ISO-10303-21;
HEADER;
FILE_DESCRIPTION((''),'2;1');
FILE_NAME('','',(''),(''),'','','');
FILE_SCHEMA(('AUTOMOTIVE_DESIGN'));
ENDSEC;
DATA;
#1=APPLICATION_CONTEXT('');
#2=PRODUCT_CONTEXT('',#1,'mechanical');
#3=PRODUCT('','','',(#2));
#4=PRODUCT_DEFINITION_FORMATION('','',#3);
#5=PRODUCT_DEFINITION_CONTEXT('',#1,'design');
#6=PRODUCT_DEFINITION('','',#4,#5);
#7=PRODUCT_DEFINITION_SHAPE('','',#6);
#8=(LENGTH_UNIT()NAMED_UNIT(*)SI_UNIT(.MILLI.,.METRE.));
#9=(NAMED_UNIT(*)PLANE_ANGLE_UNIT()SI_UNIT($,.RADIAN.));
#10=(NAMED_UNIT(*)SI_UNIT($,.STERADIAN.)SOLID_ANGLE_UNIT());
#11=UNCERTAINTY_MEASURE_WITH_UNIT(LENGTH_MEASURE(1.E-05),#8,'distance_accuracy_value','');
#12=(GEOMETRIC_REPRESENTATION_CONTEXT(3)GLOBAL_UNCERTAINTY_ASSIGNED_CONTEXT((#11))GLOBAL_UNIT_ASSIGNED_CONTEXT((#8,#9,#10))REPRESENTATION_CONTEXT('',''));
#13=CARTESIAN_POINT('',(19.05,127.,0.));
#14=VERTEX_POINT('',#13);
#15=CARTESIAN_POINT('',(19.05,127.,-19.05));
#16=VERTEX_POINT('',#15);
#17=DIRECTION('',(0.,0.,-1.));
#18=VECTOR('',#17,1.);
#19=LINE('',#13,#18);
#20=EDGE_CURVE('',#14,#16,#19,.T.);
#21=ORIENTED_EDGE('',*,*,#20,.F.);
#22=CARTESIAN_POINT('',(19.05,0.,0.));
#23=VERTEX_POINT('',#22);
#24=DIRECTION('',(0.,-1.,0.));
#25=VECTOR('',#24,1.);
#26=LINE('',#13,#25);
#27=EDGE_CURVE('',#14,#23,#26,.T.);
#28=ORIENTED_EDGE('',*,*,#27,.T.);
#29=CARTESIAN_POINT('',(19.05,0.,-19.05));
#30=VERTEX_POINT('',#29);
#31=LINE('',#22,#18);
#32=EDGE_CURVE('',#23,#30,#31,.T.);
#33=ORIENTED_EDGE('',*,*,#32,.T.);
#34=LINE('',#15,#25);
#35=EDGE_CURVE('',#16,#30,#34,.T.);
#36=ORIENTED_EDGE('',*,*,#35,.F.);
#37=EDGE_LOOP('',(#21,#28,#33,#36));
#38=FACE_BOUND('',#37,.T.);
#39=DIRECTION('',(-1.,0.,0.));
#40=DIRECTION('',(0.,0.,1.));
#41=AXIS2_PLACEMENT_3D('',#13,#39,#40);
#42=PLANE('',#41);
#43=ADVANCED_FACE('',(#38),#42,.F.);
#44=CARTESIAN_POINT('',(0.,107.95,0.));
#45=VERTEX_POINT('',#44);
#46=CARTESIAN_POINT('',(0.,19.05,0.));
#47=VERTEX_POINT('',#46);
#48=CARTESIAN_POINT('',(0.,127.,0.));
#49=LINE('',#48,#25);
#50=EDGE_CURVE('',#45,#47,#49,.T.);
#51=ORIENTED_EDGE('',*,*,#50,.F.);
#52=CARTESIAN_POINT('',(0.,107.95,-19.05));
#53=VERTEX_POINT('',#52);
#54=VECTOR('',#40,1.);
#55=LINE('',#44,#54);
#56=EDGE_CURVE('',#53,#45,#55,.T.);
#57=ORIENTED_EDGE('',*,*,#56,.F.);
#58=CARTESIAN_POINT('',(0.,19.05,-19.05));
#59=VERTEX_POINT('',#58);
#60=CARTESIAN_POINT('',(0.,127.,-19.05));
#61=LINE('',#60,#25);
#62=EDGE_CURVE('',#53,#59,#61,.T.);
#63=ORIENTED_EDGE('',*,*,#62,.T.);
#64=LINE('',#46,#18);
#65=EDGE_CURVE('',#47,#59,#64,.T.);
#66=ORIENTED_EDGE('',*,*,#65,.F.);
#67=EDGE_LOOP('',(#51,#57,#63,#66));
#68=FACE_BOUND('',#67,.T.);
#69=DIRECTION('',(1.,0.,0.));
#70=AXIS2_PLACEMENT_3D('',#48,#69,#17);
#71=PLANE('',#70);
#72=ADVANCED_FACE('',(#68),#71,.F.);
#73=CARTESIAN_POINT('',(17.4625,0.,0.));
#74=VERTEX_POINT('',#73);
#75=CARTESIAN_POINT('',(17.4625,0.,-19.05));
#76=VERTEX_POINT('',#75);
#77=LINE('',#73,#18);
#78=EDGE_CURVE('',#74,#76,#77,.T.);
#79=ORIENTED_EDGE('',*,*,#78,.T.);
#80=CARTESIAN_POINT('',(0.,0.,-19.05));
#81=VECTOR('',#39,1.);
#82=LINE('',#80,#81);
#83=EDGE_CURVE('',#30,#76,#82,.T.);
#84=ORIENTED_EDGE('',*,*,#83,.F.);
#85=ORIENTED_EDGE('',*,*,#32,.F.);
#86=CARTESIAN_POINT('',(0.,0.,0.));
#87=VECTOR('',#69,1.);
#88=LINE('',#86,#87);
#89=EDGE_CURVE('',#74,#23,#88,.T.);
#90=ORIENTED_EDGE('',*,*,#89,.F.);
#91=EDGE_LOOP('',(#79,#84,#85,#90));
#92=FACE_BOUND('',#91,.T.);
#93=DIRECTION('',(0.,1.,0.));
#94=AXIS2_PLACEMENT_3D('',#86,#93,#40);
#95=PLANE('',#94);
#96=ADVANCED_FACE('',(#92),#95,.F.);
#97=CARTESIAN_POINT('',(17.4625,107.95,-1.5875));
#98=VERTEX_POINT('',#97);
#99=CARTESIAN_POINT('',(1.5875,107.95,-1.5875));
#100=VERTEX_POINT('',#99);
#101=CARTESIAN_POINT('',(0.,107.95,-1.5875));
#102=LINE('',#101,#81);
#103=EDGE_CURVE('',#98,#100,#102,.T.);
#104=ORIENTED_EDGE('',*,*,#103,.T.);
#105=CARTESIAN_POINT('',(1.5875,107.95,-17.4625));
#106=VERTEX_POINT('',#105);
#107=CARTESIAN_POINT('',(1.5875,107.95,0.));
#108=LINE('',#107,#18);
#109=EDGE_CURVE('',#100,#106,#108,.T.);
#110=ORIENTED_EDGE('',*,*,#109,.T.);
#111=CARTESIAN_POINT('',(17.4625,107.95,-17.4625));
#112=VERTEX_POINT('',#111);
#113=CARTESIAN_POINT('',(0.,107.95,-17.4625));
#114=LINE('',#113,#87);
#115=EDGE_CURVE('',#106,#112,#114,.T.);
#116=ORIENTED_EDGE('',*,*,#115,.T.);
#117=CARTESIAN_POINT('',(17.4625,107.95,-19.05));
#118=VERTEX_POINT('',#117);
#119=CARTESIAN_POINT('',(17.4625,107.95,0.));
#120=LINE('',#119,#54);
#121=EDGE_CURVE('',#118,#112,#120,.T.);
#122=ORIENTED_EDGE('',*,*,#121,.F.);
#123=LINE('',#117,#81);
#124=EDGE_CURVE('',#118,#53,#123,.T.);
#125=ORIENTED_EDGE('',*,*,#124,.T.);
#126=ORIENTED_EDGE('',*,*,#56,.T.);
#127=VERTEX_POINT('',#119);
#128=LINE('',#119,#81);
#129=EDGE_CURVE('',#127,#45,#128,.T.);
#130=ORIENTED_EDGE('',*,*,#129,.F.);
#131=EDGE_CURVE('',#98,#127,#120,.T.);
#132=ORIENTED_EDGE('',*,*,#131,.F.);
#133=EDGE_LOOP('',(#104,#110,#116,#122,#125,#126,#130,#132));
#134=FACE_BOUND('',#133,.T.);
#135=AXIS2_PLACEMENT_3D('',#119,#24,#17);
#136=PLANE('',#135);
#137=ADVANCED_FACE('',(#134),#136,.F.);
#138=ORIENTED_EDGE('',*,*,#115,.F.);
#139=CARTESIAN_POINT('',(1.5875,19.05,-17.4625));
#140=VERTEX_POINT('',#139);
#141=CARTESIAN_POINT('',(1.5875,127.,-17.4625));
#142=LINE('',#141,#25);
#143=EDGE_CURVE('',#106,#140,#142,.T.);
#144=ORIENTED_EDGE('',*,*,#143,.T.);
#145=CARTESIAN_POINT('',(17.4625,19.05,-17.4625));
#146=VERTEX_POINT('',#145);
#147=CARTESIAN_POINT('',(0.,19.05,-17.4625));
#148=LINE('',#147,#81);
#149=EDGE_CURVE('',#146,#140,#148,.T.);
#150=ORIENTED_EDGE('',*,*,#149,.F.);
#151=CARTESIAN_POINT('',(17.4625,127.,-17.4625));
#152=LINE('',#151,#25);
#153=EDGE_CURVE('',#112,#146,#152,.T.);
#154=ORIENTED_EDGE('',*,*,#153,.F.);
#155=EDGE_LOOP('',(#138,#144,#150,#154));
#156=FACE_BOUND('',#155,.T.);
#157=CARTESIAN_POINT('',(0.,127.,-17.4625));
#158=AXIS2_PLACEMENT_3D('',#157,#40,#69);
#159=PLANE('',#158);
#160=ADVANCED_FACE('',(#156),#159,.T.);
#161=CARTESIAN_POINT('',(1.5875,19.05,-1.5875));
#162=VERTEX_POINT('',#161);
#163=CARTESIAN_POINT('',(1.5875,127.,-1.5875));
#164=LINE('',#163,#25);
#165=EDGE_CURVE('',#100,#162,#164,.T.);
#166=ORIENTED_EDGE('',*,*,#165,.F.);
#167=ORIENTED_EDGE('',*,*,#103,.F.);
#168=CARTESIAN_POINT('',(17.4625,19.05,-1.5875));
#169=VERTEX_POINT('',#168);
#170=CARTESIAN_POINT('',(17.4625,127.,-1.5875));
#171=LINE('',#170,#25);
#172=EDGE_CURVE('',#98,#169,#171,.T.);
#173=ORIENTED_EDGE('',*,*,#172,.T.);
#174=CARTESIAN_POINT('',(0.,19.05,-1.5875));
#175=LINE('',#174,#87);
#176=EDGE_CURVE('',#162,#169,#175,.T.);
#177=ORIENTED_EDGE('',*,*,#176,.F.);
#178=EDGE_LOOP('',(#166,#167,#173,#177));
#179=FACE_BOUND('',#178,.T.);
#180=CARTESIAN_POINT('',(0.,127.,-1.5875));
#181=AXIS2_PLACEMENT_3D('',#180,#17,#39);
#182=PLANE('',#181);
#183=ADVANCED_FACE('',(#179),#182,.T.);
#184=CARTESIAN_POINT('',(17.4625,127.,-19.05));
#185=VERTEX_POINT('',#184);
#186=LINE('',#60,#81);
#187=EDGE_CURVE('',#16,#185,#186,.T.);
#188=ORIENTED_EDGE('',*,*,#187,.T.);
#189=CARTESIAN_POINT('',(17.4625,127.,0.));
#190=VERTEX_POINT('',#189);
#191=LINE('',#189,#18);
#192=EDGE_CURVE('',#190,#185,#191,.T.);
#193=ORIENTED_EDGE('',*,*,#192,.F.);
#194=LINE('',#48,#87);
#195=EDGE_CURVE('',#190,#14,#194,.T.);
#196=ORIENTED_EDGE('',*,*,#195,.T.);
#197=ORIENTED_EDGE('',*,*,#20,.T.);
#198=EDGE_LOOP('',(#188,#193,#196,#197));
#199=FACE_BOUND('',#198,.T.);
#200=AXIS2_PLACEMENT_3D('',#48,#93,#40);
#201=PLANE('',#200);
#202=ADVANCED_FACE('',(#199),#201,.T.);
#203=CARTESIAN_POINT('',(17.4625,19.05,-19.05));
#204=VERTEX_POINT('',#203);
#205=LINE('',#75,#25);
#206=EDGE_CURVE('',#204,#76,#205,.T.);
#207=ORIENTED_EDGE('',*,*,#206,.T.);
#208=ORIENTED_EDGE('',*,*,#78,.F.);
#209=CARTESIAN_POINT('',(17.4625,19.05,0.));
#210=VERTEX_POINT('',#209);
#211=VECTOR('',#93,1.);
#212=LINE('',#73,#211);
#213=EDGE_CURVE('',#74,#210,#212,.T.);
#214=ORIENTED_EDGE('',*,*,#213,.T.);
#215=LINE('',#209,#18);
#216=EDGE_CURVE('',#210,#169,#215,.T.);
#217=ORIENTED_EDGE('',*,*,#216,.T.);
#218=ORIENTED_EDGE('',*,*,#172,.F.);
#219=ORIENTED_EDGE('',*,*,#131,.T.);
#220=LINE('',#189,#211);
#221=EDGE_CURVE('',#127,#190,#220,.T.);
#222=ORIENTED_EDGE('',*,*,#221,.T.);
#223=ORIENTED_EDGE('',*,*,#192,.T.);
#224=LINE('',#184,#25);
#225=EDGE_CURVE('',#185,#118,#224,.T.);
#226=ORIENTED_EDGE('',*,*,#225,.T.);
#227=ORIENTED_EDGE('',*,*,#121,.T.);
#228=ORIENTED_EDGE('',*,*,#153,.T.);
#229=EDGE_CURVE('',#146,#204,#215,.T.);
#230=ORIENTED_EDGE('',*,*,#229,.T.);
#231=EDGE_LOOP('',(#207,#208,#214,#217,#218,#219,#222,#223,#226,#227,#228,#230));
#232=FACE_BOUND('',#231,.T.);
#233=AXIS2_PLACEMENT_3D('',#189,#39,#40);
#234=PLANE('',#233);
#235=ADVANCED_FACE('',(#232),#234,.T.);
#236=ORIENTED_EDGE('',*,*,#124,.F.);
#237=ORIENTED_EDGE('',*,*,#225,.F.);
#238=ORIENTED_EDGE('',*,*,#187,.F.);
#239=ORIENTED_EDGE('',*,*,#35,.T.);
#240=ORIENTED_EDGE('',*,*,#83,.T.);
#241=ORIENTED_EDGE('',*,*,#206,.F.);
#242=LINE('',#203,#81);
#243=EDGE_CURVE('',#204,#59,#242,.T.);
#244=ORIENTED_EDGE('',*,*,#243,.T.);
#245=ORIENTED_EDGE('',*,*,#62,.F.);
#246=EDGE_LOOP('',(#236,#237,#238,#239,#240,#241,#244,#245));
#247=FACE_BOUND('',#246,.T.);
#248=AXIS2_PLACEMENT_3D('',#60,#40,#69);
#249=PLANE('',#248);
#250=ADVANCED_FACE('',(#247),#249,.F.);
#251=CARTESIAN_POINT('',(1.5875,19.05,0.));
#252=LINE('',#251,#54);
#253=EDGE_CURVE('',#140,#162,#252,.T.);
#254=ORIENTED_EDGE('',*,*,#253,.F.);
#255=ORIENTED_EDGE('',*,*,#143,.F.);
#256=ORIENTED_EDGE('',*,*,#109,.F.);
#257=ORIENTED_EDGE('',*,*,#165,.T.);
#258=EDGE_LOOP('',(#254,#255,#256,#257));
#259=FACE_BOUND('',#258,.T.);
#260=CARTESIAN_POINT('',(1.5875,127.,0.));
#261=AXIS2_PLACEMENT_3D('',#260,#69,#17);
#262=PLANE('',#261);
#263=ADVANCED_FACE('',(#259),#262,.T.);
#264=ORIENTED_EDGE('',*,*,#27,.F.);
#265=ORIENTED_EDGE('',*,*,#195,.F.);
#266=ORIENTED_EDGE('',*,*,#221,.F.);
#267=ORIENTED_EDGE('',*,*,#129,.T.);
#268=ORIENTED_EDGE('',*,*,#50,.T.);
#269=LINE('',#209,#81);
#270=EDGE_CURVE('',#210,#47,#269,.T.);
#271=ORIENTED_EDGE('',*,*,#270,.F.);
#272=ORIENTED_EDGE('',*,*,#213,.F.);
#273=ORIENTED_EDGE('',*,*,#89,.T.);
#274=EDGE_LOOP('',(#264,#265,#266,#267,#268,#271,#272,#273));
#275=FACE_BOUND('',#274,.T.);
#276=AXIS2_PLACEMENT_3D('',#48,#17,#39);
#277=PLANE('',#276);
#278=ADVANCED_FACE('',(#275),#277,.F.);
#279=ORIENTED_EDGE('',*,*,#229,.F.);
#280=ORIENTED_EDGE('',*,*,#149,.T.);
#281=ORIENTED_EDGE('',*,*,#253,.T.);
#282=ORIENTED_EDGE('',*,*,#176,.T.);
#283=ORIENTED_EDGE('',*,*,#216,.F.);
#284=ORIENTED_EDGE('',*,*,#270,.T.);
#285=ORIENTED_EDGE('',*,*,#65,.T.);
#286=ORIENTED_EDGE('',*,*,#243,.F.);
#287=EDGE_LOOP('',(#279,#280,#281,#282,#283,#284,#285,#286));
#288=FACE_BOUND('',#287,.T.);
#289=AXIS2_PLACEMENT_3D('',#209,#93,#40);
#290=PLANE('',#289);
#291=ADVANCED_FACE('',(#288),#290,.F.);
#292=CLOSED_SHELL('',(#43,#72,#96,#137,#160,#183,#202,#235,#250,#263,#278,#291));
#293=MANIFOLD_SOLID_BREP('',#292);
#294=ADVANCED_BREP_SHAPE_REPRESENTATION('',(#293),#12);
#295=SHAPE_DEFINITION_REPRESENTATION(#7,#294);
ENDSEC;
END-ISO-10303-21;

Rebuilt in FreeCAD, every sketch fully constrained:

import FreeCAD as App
import Part
import Sketcher
from FreeCAD import Vector
Q = App.Units.Quantity


def add_polygon(sketch, points):
    """Adds a closed chain of lines whose ends are joined by coincident constraints."""
    first, n = sketch.GeometryCount, len(points)
    for a, b in zip(points, points[1:] + points[:1]):
        sketch.addGeometry(Part.LineSegment(App.Vector(*a, 0), App.Vector(*b, 0)), False)
    for i in range(n):
        sketch.addConstraint(Sketcher.Constraint("Coincident", first + i, 2, first + (i + 1) % n, 1))

doc = App.newDocument("Part")
body = doc.addObject("PartDesign::Body", "Body")

sketch1 = doc.addObject("Sketcher::SketchObject", "Sketch")
body.addObject(sketch1)
sketch1.AttachmentSupport = (doc.XZ_Plane, [""])
sketch1.MapMode = "FlatFace"
add_polygon(sketch1, [(0, -19), (0, 0), (19, 0), (19, -19)])
add_polygon(sketch1, [(17, -2), (2, -2), (2, -17), (17, -17)])
sketch1.addConstraint([
    Sketcher.Constraint("Vertical", 0),
    Sketcher.Constraint("Horizontal", 1),
    Sketcher.Constraint("Vertical", 2),
    Sketcher.Constraint("Horizontal", 3),
    Sketcher.Constraint("Horizontal", 4),
    Sketcher.Constraint("Vertical", 5),
    Sketcher.Constraint("Horizontal", 6),
    Sketcher.Constraint("Vertical", 7),
    Sketcher.Constraint("Coincident", 0, 2, -1, 1),
    Sketcher.Constraint("Equal", 3, 0),
    Sketcher.Constraint("Equal", 6, 5),
    Sketcher.Constraint("DistanceX", 1, 1, 1, 2, Q("0.75 in")),
    Sketcher.Constraint("DistanceX", 4, 2, 4, 1, Q("0.625 in")),
    Sketcher.Constraint("DistanceX", -1, 1, 4, 2, Q("0.0625 in")),
    Sketcher.Constraint("DistanceY", 4, 2, -1, 1, Q("0.0625 in")),
])
pad1 = doc.addObject("PartDesign::Pad", "Pad")
body.addObject(pad1)
pad1.Profile = sketch1
pad1.Length = Q("5 in")
pad1.Reversed = True

sketch2 = doc.addObject("Sketcher::SketchObject", "Sketch001")
body.addObject(sketch2)
sketch2.AttachmentSupport = (doc.YZ_Plane, [""])
sketch2.MapMode = "FlatFace"
add_polygon(sketch2, [(19, -19), (0, -19), (0, 0), (19, 0)])
sketch2.addConstraint([
    Sketcher.Constraint("Horizontal", 0),
    Sketcher.Constraint("Vertical", 1),
    Sketcher.Constraint("Horizontal", 2),
    Sketcher.Constraint("Vertical", 3),
    Sketcher.Constraint("Coincident", 1, 2, -1, 1),
    Sketcher.Constraint("Equal", 2, 1),
    Sketcher.Constraint("DistanceX", 0, 2, 0, 1, Q("0.75 in")),
])
pocket1 = doc.addObject("PartDesign::Pocket", "Pocket")
body.addObject(pocket1)
pocket1.Profile = sketch2
pocket1.Length = Q("0.6875 in")
pocket1.Reversed = True

sketch3 = doc.addObject("Sketcher::SketchObject", "Sketch002")
body.addObject(sketch3)
sketch3.AttachmentSupport = (doc.YZ_Plane, [""])
sketch3.MapMode = "FlatFace"
add_polygon(sketch3, [(127, -19), (108, -19), (108, 0), (127, 0)])
sketch3.addConstraint([
    Sketcher.Constraint("Horizontal", 0),
    Sketcher.Constraint("Vertical", 1),
    Sketcher.Constraint("Horizontal", 2),
    Sketcher.Constraint("Vertical", 3),
    Sketcher.Constraint("PointOnObject", 1, 2, -1),
    Sketcher.Constraint("Equal", 2, 1),
    Sketcher.Constraint("DistanceX", -1, 1, 2, 2, Q("5 in")),
    Sketcher.Constraint("DistanceX", 0, 2, 0, 1, Q("0.75 in")),
])
pocket2 = doc.addObject("PartDesign::Pocket", "Pocket001")
body.addObject(pocket2)
pocket2.Profile = sketch3
pocket2.Length = Q("0.6875 in")
pocket2.Reversed = True

doc.recompute()
